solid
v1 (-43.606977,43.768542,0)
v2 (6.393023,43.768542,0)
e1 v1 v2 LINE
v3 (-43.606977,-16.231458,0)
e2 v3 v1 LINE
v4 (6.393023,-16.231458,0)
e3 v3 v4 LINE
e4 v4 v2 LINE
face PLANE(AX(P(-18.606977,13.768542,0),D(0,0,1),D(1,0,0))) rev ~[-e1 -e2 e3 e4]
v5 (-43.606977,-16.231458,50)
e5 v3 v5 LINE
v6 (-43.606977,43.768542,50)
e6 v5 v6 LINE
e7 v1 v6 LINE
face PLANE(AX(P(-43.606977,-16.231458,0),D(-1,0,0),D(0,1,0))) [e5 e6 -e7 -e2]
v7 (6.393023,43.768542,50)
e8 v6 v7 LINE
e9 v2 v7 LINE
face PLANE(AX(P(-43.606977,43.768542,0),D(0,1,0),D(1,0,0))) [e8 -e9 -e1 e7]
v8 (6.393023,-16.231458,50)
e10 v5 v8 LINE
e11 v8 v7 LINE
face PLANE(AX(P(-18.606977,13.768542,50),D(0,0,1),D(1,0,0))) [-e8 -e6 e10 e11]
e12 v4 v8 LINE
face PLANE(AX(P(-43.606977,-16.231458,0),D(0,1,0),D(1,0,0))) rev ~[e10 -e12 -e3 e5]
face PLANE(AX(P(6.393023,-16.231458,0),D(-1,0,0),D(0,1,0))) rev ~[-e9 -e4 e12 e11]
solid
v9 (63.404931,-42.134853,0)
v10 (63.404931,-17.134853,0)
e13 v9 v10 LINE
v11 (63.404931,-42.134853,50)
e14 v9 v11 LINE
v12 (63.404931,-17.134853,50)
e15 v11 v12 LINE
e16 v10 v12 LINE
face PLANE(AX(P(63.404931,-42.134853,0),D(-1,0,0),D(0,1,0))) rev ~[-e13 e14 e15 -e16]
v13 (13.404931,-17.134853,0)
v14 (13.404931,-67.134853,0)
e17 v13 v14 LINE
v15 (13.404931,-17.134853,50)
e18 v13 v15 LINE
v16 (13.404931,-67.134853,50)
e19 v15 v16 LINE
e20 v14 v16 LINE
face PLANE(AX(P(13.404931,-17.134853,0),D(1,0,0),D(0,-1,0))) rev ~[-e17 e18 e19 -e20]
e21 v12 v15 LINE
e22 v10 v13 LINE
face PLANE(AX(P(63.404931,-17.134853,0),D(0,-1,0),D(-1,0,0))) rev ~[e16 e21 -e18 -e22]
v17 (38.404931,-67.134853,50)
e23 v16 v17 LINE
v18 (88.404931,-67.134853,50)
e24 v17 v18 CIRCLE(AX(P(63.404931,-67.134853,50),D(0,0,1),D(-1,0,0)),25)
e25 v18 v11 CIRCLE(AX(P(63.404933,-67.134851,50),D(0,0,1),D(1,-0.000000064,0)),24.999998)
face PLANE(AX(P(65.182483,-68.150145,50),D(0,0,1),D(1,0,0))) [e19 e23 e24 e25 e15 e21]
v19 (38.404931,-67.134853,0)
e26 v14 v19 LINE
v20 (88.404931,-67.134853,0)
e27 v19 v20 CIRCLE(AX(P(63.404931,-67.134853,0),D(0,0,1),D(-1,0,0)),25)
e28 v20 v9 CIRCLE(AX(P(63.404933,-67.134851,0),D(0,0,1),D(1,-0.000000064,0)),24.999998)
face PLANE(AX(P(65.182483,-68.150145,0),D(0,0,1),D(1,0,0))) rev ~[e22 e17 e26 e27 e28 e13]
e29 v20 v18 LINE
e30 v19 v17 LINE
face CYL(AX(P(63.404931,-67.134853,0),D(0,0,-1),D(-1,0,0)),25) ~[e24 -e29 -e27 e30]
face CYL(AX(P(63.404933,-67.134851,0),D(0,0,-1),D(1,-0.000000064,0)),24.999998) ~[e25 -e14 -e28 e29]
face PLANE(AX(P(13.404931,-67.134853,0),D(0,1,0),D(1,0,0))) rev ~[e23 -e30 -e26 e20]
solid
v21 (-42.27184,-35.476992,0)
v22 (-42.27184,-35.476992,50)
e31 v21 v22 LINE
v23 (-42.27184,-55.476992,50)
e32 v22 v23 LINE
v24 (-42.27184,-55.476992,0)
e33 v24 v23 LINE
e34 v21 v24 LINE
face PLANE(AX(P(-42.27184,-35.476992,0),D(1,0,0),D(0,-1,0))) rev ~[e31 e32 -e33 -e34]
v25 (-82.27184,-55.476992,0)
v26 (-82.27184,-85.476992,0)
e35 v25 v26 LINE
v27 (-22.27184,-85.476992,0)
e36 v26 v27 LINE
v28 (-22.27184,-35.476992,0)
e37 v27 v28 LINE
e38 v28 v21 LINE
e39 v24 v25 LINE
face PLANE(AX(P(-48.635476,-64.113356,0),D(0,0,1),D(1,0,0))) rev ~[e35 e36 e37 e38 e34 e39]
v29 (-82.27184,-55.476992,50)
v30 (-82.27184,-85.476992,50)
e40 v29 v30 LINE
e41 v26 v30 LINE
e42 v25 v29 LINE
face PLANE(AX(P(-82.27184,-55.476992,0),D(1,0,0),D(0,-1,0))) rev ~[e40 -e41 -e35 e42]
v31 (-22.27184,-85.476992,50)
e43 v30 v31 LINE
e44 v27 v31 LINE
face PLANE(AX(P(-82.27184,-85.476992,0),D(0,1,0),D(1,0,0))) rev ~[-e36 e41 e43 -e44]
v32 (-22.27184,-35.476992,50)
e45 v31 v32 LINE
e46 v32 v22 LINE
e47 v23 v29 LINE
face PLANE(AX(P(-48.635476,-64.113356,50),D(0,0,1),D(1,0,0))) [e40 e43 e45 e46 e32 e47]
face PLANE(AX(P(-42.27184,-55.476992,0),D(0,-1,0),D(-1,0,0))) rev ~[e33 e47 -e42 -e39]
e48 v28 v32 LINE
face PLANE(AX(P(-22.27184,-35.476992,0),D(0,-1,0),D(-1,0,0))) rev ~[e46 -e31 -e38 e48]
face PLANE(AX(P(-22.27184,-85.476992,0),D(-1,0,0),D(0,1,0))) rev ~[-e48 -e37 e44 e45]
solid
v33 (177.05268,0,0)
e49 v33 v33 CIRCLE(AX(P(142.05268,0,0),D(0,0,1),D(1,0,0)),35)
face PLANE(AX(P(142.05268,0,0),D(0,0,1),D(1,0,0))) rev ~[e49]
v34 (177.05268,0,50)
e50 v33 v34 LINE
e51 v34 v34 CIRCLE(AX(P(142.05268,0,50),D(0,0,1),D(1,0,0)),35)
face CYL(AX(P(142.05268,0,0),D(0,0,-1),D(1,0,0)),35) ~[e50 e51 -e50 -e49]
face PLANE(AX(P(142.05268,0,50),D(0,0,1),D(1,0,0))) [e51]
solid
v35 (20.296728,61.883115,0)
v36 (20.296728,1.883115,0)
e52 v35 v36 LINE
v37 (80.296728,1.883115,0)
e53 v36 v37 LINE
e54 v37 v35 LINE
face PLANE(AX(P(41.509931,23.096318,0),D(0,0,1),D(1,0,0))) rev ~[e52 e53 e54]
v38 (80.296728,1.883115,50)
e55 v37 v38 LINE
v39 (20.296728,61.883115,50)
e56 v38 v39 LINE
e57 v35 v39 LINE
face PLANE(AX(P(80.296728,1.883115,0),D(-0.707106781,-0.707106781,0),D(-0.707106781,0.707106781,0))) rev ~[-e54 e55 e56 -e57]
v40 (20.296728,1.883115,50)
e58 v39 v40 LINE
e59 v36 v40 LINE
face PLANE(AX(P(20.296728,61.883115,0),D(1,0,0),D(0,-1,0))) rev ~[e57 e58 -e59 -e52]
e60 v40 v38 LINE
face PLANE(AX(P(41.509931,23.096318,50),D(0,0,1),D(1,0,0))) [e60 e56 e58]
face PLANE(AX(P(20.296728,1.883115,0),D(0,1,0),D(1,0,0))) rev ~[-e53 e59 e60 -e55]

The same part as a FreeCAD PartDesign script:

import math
import FreeCAD as App
import Part
import Sketcher

V = App.Vector
Q = App.Units.Quantity

doc = App.newDocument("Part")
body = doc.addObject("PartDesign::Body", "Body")

# Sketch on XY plane
sketch1 = body.newObject("Sketcher::SketchObject", "Sketch")
sketch1.AttachmentSupport = (doc.getObject("XY_Plane"), [""])
sketch1.MapMode = "FlatFace"
sketch1.addGeometry([
    Part.LineSegment(V(-44, 44, 0), V(-44, -16, 0)),
    Part.LineSegment(V(-44, -16, 0), V(6, -16, 0)),
    Part.LineSegment(V(6, -16, 0), V(6, 44, 0)),
    Part.LineSegment(V(6, 44, 0), V(-44, 44, 0)),
], False)
sketch1.addConstraint([
    Sketcher.Constraint("Coincident", 0, 2, 1, 1),
    Sketcher.Constraint("Coincident", 1, 2, 2, 1),
    Sketcher.Constraint("Coincident", 2, 2, 3, 1),
    Sketcher.Constraint("Coincident", 3, 2, 0, 1),
    Sketcher.Constraint("Vertical", 0),
    Sketcher.Constraint("Horizontal", 1),
    Sketcher.Constraint("Vertical", 2),
    Sketcher.Constraint("Horizontal", 3),
    Sketcher.Constraint("DistanceX", 1, 1, 1, 2, Q("50 mm")),
    Sketcher.Constraint("DistanceY", 0, 2, 0, 1, Q("60 mm")),
    Sketcher.Constraint("DistanceY", 0, 2, -1, 1, Q("16.231458 mm")),
    Sketcher.Constraint("DistanceX", 0, 2, -1, 1, Q("43.606977 mm")),
])
pad1 = body.newObject("PartDesign::Pad", "Pad")
pad1.Profile = sketch1
pad1.Length = 50
body2 = doc.addObject("PartDesign::Body", "Body001")

# Sketch on XY plane
sketch2 = body2.newObject("Sketcher::SketchObject", "Sketch001")
sketch2.AttachmentSupport = (doc.getObject("XY_Plane001"), [""])
sketch2.MapMode = "FlatFace"
sketch2.addGeometry([
    Part.LineSegment(V(-22, -35, 0), V(-42, -35, 0)),  # 0
    Part.LineSegment(V(-42, -35, 0), V(-42, -55, 0)),  # 1
    Part.LineSegment(V(-42, -55, 0), V(-82, -55, 0)),  # 2
    Part.LineSegment(V(-82, -55, 0), V(-82, -85, 0)),  # 3
    Part.LineSegment(V(-82, -85, 0), V(-22, -85, 0)),  # 4
    Part.LineSegment(V(-22, -85, 0), V(-22, -35, 0)),  # 5
], False)
sketch2.addConstraint([
    Sketcher.Constraint("Coincident", 0, 2, 1, 1),
    Sketcher.Constraint("Coincident", 1, 2, 2, 1),
    Sketcher.Constraint("Coincident", 2, 2, 3, 1),
    Sketcher.Constraint("Coincident", 3, 2, 4, 1),
    Sketcher.Constraint("Coincident", 4, 2, 5, 1),
    Sketcher.Constraint("Coincident", 5, 2, 0, 1),
    Sketcher.Constraint("Horizontal", 0),
    Sketcher.Constraint("Vertical", 1),
    Sketcher.Constraint("Horizontal", 2),
    Sketcher.Constraint("Vertical", 3),
    Sketcher.Constraint("Horizontal", 4),
    Sketcher.Constraint("Vertical", 5),
    Sketcher.Constraint("Equal", 0, 1),
    Sketcher.Constraint("DistanceX", 0, 2, 0, 1, Q("20 mm")),
    Sketcher.Constraint("DistanceX", 2, 2, 2, 1, Q("40 mm")),
    Sketcher.Constraint("DistanceY", 3, 2, 3, 1, Q("30 mm")),
    Sketcher.Constraint("DistanceX", 0, 2, -1, 1, Q("42.27184 mm")),
    Sketcher.Constraint("DistanceY", 3, 2, -1, 1, Q("85.476992 mm")),
])
pad2 = body2.newObject("PartDesign::Pad", "Pad001")
pad2.Profile = sketch2
pad2.Length = 50
body3 = doc.addObject("PartDesign::Body", "Body002")

# Sketch on XY plane
sketch3 = body3.newObject("Sketcher::SketchObject", "Sketch002")
sketch3.AttachmentSupport = (doc.getObject("XY_Plane002"), [""])
sketch3.MapMode = "FlatFace"
sketch3.addGeometry([
    Part.LineSegment(V(20, 62, 0), V(20, 2, 0)),
    Part.LineSegment(V(20, 2, 0), V(80, 2, 0)),
    Part.LineSegment(V(80, 2, 0), V(20, 62, 0)),
], False)
sketch3.addConstraint([
    Sketcher.Constraint("Coincident", 0, 2, 1, 1),
    Sketcher.Constraint("Coincident", 1, 2, 2, 1),
    Sketcher.Constraint("Coincident", 2, 2, 0, 1),
    Sketcher.Constraint("Vertical", 0),
    Sketcher.Constraint("Horizontal", 1),
    Sketcher.Constraint("Equal", 1, 0),
    Sketcher.Constraint("DistanceX", 1, 1, 1, 2, Q("60 mm")),
    Sketcher.Constraint("DistanceX", -1, 1, 0, 2, Q("20.296728 mm")),
    Sketcher.Constraint("DistanceY", -1, 1, 0, 2, Q("1.883115 mm")),
])
pad3 = body3.newObject("PartDesign::Pad", "Pad002")
pad3.Profile = sketch3
pad3.Length = 50
body4 = doc.addObject("PartDesign::Body", "Body003")
body4.AllowCompound = True

# Sketch on XY plane
sketch4 = body4.newObject("Sketcher::SketchObject", "Sketch003")
sketch4.AttachmentSupport = (doc.getObject("XY_Plane003"), [""])
sketch4.MapMode = "FlatFace"
sketch4.addGeometry([
    Part.ArcOfCircle(Part.Circle(V(63, -67, 0), V(0, 0, 1), 25), math.radians(0), math.radians(90)),  # 0
    Part.LineSegment(V(63, -42, 0), V(63, -17, 0)),  # 1
    Part.LineSegment(V(63, -17, 0), V(13, -17, 0)),  # 2
    Part.LineSegment(V(13, -17, 0), V(13, -67, 0)),  # 3
    Part.LineSegment(V(13, -67, 0), V(38, -67, 0)),  # 4
    Part.ArcOfCircle(Part.Circle(V(63, -67, 0), V(0, 0, 1), 25), math.radians(180), math.radians(360)),  # 5
    Part.Circle(V(142, 0, 0), V(0, 0, 1), 35),  # 6
], False)
sketch4.addConstraint([
    Sketcher.Constraint("Coincident", 0, 2, 1, 1),
    Sketcher.Constraint("Coincident", 1, 2, 2, 1),
    Sketcher.Constraint("Coincident", 2, 2, 3, 1),
    Sketcher.Constraint("Coincident", 3, 2, 4, 1),
    Sketcher.Constraint("Coincident", 4, 2, 5, 1),
    Sketcher.Constraint("Tangent", 5, 2, 0, 1),
    Sketcher.Constraint("Vertical", 1),
    Sketcher.Constraint("Horizontal", 2),
    Sketcher.Constraint("Vertical", 3),
    Sketcher.Constraint("Horizontal", 4),
    Sketcher.Constraint("Equal", 0, 5),
    Sketcher.Constraint("PointOnObject", 6, 3, -1),
    Sketcher.Constraint("Horizontal", 5, 3, 3, 2),
    Sketcher.Constraint("Horizontal", 4, 2, 5, 2),
    Sketcher.Constraint("Vertical", 5, 3, 0, 2),
    Sketcher.Constraint("Equal", 4, 1),
    Sketcher.Constraint("Diameter", 6, Q("70 mm")),
    Sketcher.Constraint("Radius", 0, Q("24.999998 mm")),
    Sketcher.Constraint("DistanceX", 2, 2, 2, 1, Q("50 mm")),
    Sketcher.Constraint("DistanceY", 0, 3, -1, 1, Q("67.134851 mm")),
    Sketcher.Constraint("DistanceX", -1, 1, 5, 3, Q("63.404931 mm")),
    Sketcher.Constraint("DistanceX", -1, 1, 6, 3, Q("142.05268 mm")),
])
pad4 = body4.newObject("PartDesign::Pad", "Pad003")
pad4.Profile = sketch4
pad4.Length = 50

doc.recompute()
